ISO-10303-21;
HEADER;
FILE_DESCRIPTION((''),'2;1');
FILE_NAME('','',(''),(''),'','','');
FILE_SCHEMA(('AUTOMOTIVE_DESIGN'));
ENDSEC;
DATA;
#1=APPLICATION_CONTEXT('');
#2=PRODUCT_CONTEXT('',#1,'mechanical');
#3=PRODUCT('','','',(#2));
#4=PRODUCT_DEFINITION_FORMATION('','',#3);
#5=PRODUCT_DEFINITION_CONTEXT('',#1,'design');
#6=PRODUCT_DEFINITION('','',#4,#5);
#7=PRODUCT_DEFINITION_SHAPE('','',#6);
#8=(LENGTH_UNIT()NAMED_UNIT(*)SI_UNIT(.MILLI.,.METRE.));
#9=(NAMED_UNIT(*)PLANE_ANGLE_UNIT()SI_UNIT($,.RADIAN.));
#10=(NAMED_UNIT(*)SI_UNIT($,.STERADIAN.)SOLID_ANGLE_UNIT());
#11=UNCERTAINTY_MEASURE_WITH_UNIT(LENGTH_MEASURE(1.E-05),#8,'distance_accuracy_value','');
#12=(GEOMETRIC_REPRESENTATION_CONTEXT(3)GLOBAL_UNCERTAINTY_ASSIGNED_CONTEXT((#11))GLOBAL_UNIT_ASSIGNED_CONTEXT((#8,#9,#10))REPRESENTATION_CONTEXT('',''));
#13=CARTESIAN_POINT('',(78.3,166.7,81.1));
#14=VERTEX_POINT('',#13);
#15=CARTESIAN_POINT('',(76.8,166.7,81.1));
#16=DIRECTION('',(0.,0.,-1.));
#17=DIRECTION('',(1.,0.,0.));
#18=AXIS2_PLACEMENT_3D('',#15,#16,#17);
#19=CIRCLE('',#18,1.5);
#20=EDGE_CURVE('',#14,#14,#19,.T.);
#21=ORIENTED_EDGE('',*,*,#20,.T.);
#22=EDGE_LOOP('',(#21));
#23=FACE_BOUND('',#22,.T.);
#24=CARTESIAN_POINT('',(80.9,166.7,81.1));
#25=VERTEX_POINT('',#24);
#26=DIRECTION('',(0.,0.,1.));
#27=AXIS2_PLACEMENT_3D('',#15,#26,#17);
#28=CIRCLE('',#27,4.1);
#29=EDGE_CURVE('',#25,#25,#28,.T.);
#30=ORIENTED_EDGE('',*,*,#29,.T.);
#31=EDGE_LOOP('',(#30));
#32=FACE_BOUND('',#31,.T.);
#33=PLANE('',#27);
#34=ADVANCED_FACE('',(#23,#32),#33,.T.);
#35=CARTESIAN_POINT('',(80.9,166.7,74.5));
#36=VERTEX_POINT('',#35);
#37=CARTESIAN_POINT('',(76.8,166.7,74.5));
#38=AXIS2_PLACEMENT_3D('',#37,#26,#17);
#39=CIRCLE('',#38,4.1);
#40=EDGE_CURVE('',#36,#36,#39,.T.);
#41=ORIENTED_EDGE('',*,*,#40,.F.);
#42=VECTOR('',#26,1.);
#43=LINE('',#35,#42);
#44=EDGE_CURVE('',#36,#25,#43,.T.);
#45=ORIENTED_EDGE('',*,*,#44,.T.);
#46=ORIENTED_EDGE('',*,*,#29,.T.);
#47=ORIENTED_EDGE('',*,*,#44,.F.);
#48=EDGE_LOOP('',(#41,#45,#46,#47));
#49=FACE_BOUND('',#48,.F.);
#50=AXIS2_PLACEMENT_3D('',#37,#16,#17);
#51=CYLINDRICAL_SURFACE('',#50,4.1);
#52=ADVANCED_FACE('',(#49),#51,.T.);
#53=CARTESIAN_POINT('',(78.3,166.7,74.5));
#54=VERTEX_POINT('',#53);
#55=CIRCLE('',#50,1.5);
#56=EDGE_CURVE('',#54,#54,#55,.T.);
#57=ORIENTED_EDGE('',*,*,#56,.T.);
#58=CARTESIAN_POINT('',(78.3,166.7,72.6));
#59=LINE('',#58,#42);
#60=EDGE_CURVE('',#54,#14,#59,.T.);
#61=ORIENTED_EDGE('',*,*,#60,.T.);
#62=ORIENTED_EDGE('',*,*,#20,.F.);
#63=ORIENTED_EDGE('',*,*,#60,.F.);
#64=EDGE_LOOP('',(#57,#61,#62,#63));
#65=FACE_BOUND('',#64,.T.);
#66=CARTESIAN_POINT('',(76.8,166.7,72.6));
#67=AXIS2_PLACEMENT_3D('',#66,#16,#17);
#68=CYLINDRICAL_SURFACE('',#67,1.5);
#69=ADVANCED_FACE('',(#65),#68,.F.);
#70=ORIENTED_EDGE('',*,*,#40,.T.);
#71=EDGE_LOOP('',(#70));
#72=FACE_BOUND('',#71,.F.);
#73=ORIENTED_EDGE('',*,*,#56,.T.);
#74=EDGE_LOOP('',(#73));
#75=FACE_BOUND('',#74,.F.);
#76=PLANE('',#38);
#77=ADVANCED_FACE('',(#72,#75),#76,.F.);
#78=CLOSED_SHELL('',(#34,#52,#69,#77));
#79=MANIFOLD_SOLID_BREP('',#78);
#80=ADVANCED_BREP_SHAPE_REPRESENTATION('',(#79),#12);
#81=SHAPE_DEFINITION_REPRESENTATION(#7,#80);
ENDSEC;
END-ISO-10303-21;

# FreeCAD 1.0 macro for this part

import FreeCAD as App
import Part
import Sketcher
from FreeCAD import Vector
Q = App.Units.Quantity

doc = App.newDocument("Part")
body = doc.addObject("PartDesign::Body", "Body")

# Sketch on XY plane
sketch1 = body.newObject("Sketcher::SketchObject", "Sketch")
sketch1.AttachmentSupport = (doc.getObject("XY_Plane"), [""])
sketch1.MapMode = "FlatFace"
sketch1.AttachmentOffset = App.Placement(Vector(0, 0, -1.9), App.Rotation())
sketch1.addGeometry(Part.Circle(Vector(0, 0, 0), Vector(0, 0, 1), 1.5), False)
sketch1.addConstraint([
    Sketcher.Constraint("Coincident", 0, 3, -1, 1),
    Sketcher.Constraint("Diameter", 0, Q("3 mm")),
])
pad1 = body.newObject("PartDesign::Pad", "Pad")
pad1.Profile = sketch1
pad1.Length = 10
body2 = doc.addObject("PartDesign::Body", "Body001")

# Sketch on XY plane
sketch2 = body2.newObject("Sketcher::SketchObject", "Sketch001")
sketch2.AttachmentSupport = (doc.getObject("XY_Plane001"), [""])
sketch2.MapMode = "FlatFace"
sketch2.addGeometry(Part.Circle(Vector(0, 0, 0), Vector(0, 0, 1), 4.1), False)
sketch2.addConstraint([
    Sketcher.Constraint("Coincident", 0, 3, -1, 1),
    Sketcher.Constraint("Diameter", 0, Q("8.2 mm")),
])
pad2 = body2.newObject("PartDesign::Pad", "Pad001")
pad2.Profile = sketch2
pad2.Length = 6.6
doc.recompute()

boolean = body2.newObject("PartDesign::Boolean", "Boolean")
boolean.Type = "Cut"
boolean.addObjects([body])
body3 = doc.addObject("PartDesign::Body", "Body002")
doc.recompute()

body2.Placement = App.Placement(Vector(76.8, 166.7, 74.5), App.Rotation(Vector(0, 0, 1), 0))
boolean2 = body3.newObject("PartDesign::Boolean", "Boolean001")
boolean2.Type = "Fuse"
boolean2.addObjects([body2])

doc.recompute()
